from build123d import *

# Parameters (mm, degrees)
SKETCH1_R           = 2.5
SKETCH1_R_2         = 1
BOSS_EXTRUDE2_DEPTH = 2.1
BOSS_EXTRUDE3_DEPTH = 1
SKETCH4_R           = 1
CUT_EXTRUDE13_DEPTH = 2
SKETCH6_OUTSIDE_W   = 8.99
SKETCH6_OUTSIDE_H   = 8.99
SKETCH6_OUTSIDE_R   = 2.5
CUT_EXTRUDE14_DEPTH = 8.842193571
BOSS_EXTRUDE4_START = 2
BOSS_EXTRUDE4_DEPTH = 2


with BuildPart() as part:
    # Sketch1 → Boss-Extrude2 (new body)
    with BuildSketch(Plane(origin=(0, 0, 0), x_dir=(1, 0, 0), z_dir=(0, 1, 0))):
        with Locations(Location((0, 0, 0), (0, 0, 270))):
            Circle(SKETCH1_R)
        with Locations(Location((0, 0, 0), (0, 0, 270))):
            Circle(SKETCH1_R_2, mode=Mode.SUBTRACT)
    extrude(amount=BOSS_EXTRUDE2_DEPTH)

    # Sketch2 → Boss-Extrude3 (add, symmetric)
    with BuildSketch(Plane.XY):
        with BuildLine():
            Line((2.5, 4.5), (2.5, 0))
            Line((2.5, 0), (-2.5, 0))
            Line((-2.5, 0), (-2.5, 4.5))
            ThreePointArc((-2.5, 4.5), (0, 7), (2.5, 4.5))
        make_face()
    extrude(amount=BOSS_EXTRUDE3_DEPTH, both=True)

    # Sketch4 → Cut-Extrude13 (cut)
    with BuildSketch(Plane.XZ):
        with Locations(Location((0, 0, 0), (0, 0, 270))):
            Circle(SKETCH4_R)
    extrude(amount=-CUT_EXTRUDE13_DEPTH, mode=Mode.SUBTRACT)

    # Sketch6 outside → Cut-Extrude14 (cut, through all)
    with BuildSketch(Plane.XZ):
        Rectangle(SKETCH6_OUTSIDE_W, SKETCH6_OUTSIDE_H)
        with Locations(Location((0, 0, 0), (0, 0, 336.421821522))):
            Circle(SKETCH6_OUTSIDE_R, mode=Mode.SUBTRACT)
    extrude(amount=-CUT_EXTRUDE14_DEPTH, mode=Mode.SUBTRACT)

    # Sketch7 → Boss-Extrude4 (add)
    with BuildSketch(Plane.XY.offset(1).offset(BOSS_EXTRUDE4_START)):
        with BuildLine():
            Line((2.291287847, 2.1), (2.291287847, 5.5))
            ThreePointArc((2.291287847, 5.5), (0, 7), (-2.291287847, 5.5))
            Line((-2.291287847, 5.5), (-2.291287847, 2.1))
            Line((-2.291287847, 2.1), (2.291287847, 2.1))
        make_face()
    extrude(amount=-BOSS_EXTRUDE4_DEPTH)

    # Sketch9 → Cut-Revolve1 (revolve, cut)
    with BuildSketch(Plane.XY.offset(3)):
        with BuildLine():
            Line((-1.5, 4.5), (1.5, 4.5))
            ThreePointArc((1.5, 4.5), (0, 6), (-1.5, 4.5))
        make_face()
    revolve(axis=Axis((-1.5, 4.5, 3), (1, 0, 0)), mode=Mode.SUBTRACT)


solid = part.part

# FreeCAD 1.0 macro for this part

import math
import FreeCAD as App
import Part
import Sketcher

V = App.Vector

doc = App.newDocument("Part")
params = doc.addObject("Spreadsheet::Sheet", "Params")
for row, (alias, value) in enumerate([
    ("sketch1_diameter", "5 mm"),
    ("sketch1_diameter2", "2 mm"),
    ("pad1_length", "2.1 mm"),
    ("sketch2_radius", "2.5 mm"),
    ("sketch2_height", "4.5 mm"),
    ("pad2_length", "2 mm"),
    ("sketch3_diameter", "2 mm"),
    ("pocket1_length", "2 mm"),
    ("sketch4_diameter", "5 mm"),
    ("sketch4_width", "8.99 mm"),
    ("sketch5_radius", "2.5 mm"),
    ("sketch5_height", "3.4 mm"),
    ("pad3_length", "2 mm"),
    ("sketch6_radius", "1.5 mm"),
    ("groove_angle", "360 deg"),
], start=1):
    params.set(f"A{row}", alias)
    params.set(f"B{row}", "=" + value)
    params.setAlias(f"B{row}", alias)

body = doc.addObject("PartDesign::Body", "Body")

# Sketch on XZ plane
sketch1 = body.newObject("Sketcher::SketchObject", "Sketch")
sketch1.AttachmentSupport = (doc.getObject("XZ_Plane"), [""])
sketch1.MapMode = "FlatFace"
sketch1.addGeometry([
    Part.Circle(V(0, 0, 0), V(0, 0, 1), 2.5),
    Part.Circle(V(0, 0, 0), V(0, 0, 1), 1),
], False)
sketch1.addConstraint([
    Sketcher.Constraint("Coincident", 0, 3, -1, 1),
    Sketcher.Constraint("Coincident", 1, 3, -1, 1),
    Sketcher.Constraint("Diameter", 0, 5.0),
    Sketcher.Constraint("Diameter", 1, 2.0),
])
sketch1.setExpression("Constraints[2]", "Params.sketch1_diameter")
sketch1.setExpression("Constraints[3]", "Params.sketch1_diameter2")
pad1 = body.newObject("PartDesign::Pad", "Pad")
pad1.Profile = sketch1
pad1.setExpression("Length", "Params.pad1_length")
pad1.Reversed = True

# Sketch on XY plane
sketch2 = body.newObject("Sketcher::SketchObject", "Sketch001")
sketch2.AttachmentSupport = (doc.getObject("XY_Plane"), [""])
sketch2.MapMode = "FlatFace"
sketch2.addGeometry([
    Part.LineSegment(V(2.5, 0, 0), V(2.5, 4.5, 0)),
    Part.ArcOfCircle(Part.Circle(V(0, 4.5, 0), V(0, 0, 1), 2.5), math.radians(0), math.radians(180)),
    Part.LineSegment(V(-2.5, 4.5, 0), V(-2.5, 0, 0)),
    Part.LineSegment(V(-2.5, 0, 0), V(2.5, 0, 0)),
], False)
sketch2.addConstraint([
    Sketcher.Constraint("Tangent", 0, 2, 1, 1),
    Sketcher.Constraint("Tangent", 1, 2, 2, 1),
    Sketcher.Constraint("Coincident", 2, 2, 3, 1),
    Sketcher.Constraint("Coincident", 3, 2, 0, 1),
    Sketcher.Constraint("Vertical", 0),
    Sketcher.Constraint("Vertical", 2),
    Sketcher.Constraint("Horizontal", 3),
    Sketcher.Constraint("Symmetric", 2, 2, 3, 2, -1, 1),
    Sketcher.Constraint("Radius", 1, 2.5),
    Sketcher.Constraint("DistanceY", 0, 1, 0, 2, 4.5),
])
sketch2.setExpression("Constraints[8]", "Params.sketch2_radius")
sketch2.setExpression("Constraints[9]", "Params.sketch2_height")
pad2 = body.newObject("PartDesign::Pad", "Pad001")
pad2.Profile = sketch2
pad2.setExpression("Length", "Params.pad2_length")
pad2.Midplane = True

# Sketch on XZ plane
sketch3 = body.newObject("Sketcher::SketchObject", "Sketch002")
sketch3.AttachmentSupport = (doc.getObject("XZ_Plane"), [""])
sketch3.MapMode = "FlatFace"
sketch3.addGeometry(Part.Circle(V(0, 0, 0), V(0, 0, 1), 1), False)
sketch3.addConstraint([
    Sketcher.Constraint("Coincident", 0, 3, -1, 1),
    Sketcher.Constraint("Diameter", 0, 2.0),
])
sketch3.setExpression("Constraints[1]", "Params.sketch3_diameter")
pocket1 = body.newObject("PartDesign::Pocket", "Pocket")
pocket1.Profile = sketch3
pocket1.setExpression("Length", "Params.pocket1_length")

# Sketch on XZ plane
sketch4 = body.newObject("Sketcher::SketchObject", "Sketch003")
sketch4.AttachmentSupport = (doc.getObject("XZ_Plane"), [""])
sketch4.MapMode = "FlatFace"
sketch4.addGeometry([
    Part.LineSegment(V(-4.5, 4.5, 0), V(-4.5, -4.5, 0)),  # 0
    Part.LineSegment(V(-4.5, -4.5, 0), V(4.5, -4.5, 0)),  # 1
    Part.LineSegment(V(4.5, -4.5, 0), V(4.5, 4.5, 0)),  # 2
    Part.LineSegment(V(4.5, 4.5, 0), V(-4.5, 4.5, 0)),  # 3
    Part.Circle(V(0, 0, 0), V(0, 0, 1), 2.5),  # 4
], False)
sketch4.addConstraint([
    Sketcher.Constraint("Coincident", 0, 2, 1, 1),
    Sketcher.Constraint("Coincident", 1, 2, 2, 1),
    Sketcher.Constraint("Coincident", 2, 2, 3, 1),
    Sketcher.Constraint("Coincident", 3, 2, 0, 1),
    Sketcher.Constraint("Vertical", 0),
    Sketcher.Constraint("Horizontal", 1),
    Sketcher.Constraint("Vertical", 2),
    Sketcher.Constraint("Horizontal", 3),
    Sketcher.Constraint("Coincident", 4, 3, -1, 1),
    Sketcher.Constraint("Symmetric", 0, 2, 2, 2, -1, 1),
    Sketcher.Constraint("Equal", 3, 0),
    Sketcher.Constraint("Diameter", 4, 5.0),
    Sketcher.Constraint("DistanceX", 1, 1, 1, 2, 8.99),
])
sketch4.setExpression("Constraints[11]", "Params.sketch4_diameter")
sketch4.setExpression("Constraints[12]", "Params.sketch4_width")
pocket2 = body.newObject("PartDesign::Pocket", "Pocket001")
pocket2.Profile = sketch4
pocket2.Type = "ThroughAll"

# Sketch on XY plane
sketch5 = body.newObject("Sketcher::SketchObject", "Sketch004")
sketch5.AttachmentSupport = (doc.getObject("XY_Plane"), [""])
sketch5.MapMode = "FlatFace"
sketch5.AttachmentOffset = App.Placement(V(0, 0, 3), App.Rotation())
sketch5.addGeometry([
    Part.LineSegment(V(2.3, 2.1, 0), V(2.3, 5.5, 0)),
    Part.ArcOfCircle(Part.Circle(V(0, 4.5, 0), V(0, 0, 1), 2.5), math.radians(24), math.radians(156)),
    Part.LineSegment(V(-2.3, 5.5, 0), V(-2.3, 2.1, 0)),
    Part.LineSegment(V(-2.3, 2.1, 0), V(2.3, 2.1, 0)),
], False)
sketch5.addConstraint([
    Sketcher.Constraint("Coincident", 0, 2, 1, 1),
    Sketcher.Constraint("Coincident", 1, 2, 2, 1),
    Sketcher.Constraint("Coincident", 2, 2, 3, 1),
    Sketcher.Constraint("Coincident", 3, 2, 0, 1),
    Sketcher.Constraint("Vertical", 0),
    Sketcher.Constraint("Vertical", 2),
    Sketcher.Constraint("Horizontal", 3),
    Sketcher.Constraint("Symmetric", 0, 2, 1, 2, -2),
    Sketcher.Constraint("Radius", 1, 2.5),
    Sketcher.Constraint("DistanceY", 0, 1, 0, 2, 3.4),
    Sketcher.Constraint("DistanceY", 1, 3, 0, 2, 1.0),
    Sketcher.Constraint("DistanceY", -1, 1, 1, 3, 4.5),
])
sketch5.setExpression("Constraints[8]", "Params.sketch5_radius")
sketch5.setExpression("Constraints[9]", "Params.sketch5_height")
pad3 = body.newObject("PartDesign::Pad", "Pad002")
pad3.Profile = sketch5
pad3.setExpression("Length", "Params.pad3_length")
pad3.Reversed = True

# Sketch on XY plane
sketch6 = body.newObject("Sketcher::SketchObject", "Sketch005")
sketch6.AttachmentSupport = (doc.getObject("XY_Plane"), [""])
sketch6.MapMode = "FlatFace"
sketch6.AttachmentOffset = App.Placement(V(0, 0, 3), App.Rotation())
sketch6.addGeometry([
    Part.LineSegment(V(-1.5, 4.5, 0), V(1.5, 4.5, 0)),
    Part.ArcOfCircle(Part.Circle(V(0, 4.5, 0), V(0, 0, 1), 1.5), math.radians(0), math.radians(180)),
], False)
sketch6.addGeometry(Part.LineSegment(V(-1.5, 4.5, 0), V(1.5, 4.5, 0)), True)  # axis
sketch6.addConstraint([
    Sketcher.Constraint("Coincident", 0, 1, 1, 2),
    Sketcher.Constraint("Coincident", 1, 1, 0, 2),
    Sketcher.Constraint("Horizontal", 0),
    Sketcher.Constraint("Horizontal", 2),
    Sketcher.Constraint("Coincident", 2, 1, 0, 1),
    Sketcher.Constraint("PointOnObject", 1, 3, -2),
    Sketcher.Constraint("Horizontal", 1, 3, 0, 1),
    Sketcher.Constraint("Equal", 0, 2),
    Sketcher.Constraint("Radius", 1, 1.5),
    Sketcher.Constraint("DistanceY", -1, 1, 1, 3, 4.5),
])
sketch6.setExpression("Constraints[8]", "Params.sketch6_radius")
groove = body.newObject("PartDesign::Groove", "Groove")
groove.Profile = sketch6
groove.ReferenceAxis = (sketch6, ["Axis0"])
groove.setExpression("Angle", "Params.groove_angle")

doc.recompute()
